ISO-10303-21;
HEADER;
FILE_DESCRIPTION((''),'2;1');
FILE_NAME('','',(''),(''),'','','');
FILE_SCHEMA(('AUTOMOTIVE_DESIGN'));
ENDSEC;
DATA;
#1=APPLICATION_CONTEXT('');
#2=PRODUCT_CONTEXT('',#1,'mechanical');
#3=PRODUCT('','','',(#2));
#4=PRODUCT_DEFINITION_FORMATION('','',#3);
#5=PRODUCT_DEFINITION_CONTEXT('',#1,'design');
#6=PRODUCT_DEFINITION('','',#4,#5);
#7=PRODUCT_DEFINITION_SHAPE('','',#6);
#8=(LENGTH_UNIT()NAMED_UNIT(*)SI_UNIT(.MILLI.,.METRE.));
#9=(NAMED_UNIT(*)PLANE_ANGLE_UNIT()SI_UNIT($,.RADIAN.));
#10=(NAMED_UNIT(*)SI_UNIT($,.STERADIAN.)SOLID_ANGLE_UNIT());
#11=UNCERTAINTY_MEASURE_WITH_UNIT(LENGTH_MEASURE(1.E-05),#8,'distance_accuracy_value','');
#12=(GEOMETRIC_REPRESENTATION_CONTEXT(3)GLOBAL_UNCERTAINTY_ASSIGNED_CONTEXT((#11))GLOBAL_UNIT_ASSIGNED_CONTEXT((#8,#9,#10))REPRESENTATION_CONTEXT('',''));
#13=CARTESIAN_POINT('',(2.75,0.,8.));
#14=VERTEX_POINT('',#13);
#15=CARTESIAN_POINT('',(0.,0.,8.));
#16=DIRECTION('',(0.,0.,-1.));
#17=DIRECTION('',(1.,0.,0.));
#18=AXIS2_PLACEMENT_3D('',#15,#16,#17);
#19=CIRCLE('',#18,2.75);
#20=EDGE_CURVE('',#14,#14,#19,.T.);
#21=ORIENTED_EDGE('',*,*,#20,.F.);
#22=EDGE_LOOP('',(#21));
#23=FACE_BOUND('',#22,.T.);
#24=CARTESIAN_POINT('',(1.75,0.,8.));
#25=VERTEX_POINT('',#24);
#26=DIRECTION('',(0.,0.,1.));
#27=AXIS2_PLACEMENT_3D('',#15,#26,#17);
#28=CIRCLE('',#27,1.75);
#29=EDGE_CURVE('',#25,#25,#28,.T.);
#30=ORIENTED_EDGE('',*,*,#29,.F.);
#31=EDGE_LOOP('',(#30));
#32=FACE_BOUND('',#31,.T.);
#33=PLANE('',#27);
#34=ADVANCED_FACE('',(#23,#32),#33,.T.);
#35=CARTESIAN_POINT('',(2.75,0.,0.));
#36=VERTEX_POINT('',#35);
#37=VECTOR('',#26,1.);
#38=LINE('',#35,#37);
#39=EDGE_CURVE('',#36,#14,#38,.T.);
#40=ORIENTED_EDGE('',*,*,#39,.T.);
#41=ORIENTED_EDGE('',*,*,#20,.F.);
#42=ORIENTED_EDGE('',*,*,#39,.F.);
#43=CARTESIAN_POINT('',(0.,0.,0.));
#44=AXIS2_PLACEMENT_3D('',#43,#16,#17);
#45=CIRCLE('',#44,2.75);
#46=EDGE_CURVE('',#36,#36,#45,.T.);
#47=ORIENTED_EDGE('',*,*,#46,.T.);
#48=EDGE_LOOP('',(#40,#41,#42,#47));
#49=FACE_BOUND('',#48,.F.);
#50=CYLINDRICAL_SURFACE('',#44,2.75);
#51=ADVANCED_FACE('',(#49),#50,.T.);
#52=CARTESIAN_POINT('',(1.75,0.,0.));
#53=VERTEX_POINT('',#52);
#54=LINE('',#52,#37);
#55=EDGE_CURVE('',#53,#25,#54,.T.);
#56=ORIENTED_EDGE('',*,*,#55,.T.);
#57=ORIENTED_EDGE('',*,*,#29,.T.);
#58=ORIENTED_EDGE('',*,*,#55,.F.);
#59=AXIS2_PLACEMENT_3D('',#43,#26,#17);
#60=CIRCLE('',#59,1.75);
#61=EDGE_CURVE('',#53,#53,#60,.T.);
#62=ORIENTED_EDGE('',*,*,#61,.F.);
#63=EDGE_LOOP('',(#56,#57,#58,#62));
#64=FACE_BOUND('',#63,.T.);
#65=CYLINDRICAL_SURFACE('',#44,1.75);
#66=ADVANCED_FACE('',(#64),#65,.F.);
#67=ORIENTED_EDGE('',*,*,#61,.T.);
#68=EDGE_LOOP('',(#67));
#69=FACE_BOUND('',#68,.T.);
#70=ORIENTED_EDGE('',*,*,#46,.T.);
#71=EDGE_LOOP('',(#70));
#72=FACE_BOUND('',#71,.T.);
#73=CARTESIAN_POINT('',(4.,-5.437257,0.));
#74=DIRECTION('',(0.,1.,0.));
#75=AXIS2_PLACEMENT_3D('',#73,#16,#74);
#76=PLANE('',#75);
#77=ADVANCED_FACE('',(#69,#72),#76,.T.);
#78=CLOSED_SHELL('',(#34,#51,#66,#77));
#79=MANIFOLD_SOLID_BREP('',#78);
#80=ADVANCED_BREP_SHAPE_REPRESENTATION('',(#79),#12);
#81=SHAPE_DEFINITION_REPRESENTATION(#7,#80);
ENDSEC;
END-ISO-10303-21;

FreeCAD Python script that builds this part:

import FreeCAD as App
import Part
import Sketcher


def faces_at(feature, points):
    """Names of the faces that lie closest to the given points."""
    faces = feature.Shape.Faces
    near = lambda p: min(range(len(faces)), key=lambda i: faces[i].distToShape(Part.Vertex(*p))[0])
    return sorted({f"Face{near(p) + 1}" for p in points})


def add_polygon(sketch, points):
    """Adds a closed chain of lines whose ends are joined by coincident constraints."""
    first, n = sketch.GeometryCount, len(points)
    for a, b in zip(points, points[1:] + points[:1]):
        sketch.addGeometry(Part.LineSegment(App.Vector(*a, 0), App.Vector(*b, 0)), False)
    for i in range(n):
        sketch.addConstraint(Sketcher.Constraint("Coincident", first + i, 2, first + (i + 1) % n, 1))

doc = App.newDocument("Part")
params = doc.addObject("Spreadsheet::Sheet", "Params")
for row, (alias, value) in enumerate([
    ("sketch1_diameter", "3.5 mm"),
    ("pad1_length", "8 mm"),
    ("thickness_wall", "1 mm"),
], start=1):
    params.set(f"A{row}", alias)
    params.set(f"B{row}", "=" + value)
    params.setAlias(f"B{row}", alias)

body = doc.addObject("PartDesign::Body", "Body")

# Sketch on XY plane
sketch1 = doc.addObject("Sketcher::SketchObject", "Sketch")
body.addObject(sketch1)
sketch1.AttachmentSupport = (doc.XY_Plane, [""])
sketch1.MapMode = "FlatFace"
sketch1.addGeometry(Part.Circle(App.Vector(0, 0, 0), App.Vector(0, 0, 1), 1.8), False)
sketch1.addConstraint([
    Sketcher.Constraint("Coincident", 0, 3, -1, 1),
    Sketcher.Constraint("Diameter", 0, 3.5),
])
sketch1.setExpression("Constraints[1]", "Params.sketch1_diameter")
pad1 = doc.addObject("PartDesign::Pad", "Pad")
body.addObject(pad1)
pad1.Profile = sketch1
pad1.setExpression("Length", "Params.pad1_length")
doc.recompute()

thickness = doc.addObject("PartDesign::Thickness", "Thickness")
body.addObject(thickness)
thickness.Base = (pad1, faces_at(pad1, [(0, 0, 8)]))
thickness.setExpression("Value", "Params.thickness_wall")
thickness.Reversed = False
thickness.Join = "Intersection"

# Sketch on YZ plane
sketch2 = doc.addObject("Sketcher::SketchObject", "Sketch001")
body.addObject(sketch2)
sketch2.AttachmentSupport = (doc.YZ_Plane, [""])
sketch2.MapMode = "FlatFace"
sketch2.AttachmentOffset = App.Placement(App.Vector(0, 0, 4), App.Rotation())
add_polygon(sketch2, [(-5.4, 0), (-5.4, -5), (7.1, -5), (7.1, 0)])  # lines 0-3
sketch2.addConstraint([
    Sketcher.Constraint("Vertical", 0),
    Sketcher.Constraint("Horizontal", 1),
    Sketcher.Constraint("Vertical", 2),
    Sketcher.Constraint("Horizontal", 3),
    Sketcher.Constraint("PointOnObject", 2, 2, -1),
    Sketcher.Constraint("DistanceX", 1, 1, 1, 2, 12.495425),
    Sketcher.Constraint("DistanceY", 0, 2, 0, 1, 4.952306),
    Sketcher.Constraint("DistanceX", -1, 1, 1, 2, 7.058168),
])
pocket1 = doc.addObject("PartDesign::Pocket", "Pocket")
body.addObject(pocket1)
pocket1.Profile = sketch2
pocket1.Type = "ThroughAll"

doc.recompute()
